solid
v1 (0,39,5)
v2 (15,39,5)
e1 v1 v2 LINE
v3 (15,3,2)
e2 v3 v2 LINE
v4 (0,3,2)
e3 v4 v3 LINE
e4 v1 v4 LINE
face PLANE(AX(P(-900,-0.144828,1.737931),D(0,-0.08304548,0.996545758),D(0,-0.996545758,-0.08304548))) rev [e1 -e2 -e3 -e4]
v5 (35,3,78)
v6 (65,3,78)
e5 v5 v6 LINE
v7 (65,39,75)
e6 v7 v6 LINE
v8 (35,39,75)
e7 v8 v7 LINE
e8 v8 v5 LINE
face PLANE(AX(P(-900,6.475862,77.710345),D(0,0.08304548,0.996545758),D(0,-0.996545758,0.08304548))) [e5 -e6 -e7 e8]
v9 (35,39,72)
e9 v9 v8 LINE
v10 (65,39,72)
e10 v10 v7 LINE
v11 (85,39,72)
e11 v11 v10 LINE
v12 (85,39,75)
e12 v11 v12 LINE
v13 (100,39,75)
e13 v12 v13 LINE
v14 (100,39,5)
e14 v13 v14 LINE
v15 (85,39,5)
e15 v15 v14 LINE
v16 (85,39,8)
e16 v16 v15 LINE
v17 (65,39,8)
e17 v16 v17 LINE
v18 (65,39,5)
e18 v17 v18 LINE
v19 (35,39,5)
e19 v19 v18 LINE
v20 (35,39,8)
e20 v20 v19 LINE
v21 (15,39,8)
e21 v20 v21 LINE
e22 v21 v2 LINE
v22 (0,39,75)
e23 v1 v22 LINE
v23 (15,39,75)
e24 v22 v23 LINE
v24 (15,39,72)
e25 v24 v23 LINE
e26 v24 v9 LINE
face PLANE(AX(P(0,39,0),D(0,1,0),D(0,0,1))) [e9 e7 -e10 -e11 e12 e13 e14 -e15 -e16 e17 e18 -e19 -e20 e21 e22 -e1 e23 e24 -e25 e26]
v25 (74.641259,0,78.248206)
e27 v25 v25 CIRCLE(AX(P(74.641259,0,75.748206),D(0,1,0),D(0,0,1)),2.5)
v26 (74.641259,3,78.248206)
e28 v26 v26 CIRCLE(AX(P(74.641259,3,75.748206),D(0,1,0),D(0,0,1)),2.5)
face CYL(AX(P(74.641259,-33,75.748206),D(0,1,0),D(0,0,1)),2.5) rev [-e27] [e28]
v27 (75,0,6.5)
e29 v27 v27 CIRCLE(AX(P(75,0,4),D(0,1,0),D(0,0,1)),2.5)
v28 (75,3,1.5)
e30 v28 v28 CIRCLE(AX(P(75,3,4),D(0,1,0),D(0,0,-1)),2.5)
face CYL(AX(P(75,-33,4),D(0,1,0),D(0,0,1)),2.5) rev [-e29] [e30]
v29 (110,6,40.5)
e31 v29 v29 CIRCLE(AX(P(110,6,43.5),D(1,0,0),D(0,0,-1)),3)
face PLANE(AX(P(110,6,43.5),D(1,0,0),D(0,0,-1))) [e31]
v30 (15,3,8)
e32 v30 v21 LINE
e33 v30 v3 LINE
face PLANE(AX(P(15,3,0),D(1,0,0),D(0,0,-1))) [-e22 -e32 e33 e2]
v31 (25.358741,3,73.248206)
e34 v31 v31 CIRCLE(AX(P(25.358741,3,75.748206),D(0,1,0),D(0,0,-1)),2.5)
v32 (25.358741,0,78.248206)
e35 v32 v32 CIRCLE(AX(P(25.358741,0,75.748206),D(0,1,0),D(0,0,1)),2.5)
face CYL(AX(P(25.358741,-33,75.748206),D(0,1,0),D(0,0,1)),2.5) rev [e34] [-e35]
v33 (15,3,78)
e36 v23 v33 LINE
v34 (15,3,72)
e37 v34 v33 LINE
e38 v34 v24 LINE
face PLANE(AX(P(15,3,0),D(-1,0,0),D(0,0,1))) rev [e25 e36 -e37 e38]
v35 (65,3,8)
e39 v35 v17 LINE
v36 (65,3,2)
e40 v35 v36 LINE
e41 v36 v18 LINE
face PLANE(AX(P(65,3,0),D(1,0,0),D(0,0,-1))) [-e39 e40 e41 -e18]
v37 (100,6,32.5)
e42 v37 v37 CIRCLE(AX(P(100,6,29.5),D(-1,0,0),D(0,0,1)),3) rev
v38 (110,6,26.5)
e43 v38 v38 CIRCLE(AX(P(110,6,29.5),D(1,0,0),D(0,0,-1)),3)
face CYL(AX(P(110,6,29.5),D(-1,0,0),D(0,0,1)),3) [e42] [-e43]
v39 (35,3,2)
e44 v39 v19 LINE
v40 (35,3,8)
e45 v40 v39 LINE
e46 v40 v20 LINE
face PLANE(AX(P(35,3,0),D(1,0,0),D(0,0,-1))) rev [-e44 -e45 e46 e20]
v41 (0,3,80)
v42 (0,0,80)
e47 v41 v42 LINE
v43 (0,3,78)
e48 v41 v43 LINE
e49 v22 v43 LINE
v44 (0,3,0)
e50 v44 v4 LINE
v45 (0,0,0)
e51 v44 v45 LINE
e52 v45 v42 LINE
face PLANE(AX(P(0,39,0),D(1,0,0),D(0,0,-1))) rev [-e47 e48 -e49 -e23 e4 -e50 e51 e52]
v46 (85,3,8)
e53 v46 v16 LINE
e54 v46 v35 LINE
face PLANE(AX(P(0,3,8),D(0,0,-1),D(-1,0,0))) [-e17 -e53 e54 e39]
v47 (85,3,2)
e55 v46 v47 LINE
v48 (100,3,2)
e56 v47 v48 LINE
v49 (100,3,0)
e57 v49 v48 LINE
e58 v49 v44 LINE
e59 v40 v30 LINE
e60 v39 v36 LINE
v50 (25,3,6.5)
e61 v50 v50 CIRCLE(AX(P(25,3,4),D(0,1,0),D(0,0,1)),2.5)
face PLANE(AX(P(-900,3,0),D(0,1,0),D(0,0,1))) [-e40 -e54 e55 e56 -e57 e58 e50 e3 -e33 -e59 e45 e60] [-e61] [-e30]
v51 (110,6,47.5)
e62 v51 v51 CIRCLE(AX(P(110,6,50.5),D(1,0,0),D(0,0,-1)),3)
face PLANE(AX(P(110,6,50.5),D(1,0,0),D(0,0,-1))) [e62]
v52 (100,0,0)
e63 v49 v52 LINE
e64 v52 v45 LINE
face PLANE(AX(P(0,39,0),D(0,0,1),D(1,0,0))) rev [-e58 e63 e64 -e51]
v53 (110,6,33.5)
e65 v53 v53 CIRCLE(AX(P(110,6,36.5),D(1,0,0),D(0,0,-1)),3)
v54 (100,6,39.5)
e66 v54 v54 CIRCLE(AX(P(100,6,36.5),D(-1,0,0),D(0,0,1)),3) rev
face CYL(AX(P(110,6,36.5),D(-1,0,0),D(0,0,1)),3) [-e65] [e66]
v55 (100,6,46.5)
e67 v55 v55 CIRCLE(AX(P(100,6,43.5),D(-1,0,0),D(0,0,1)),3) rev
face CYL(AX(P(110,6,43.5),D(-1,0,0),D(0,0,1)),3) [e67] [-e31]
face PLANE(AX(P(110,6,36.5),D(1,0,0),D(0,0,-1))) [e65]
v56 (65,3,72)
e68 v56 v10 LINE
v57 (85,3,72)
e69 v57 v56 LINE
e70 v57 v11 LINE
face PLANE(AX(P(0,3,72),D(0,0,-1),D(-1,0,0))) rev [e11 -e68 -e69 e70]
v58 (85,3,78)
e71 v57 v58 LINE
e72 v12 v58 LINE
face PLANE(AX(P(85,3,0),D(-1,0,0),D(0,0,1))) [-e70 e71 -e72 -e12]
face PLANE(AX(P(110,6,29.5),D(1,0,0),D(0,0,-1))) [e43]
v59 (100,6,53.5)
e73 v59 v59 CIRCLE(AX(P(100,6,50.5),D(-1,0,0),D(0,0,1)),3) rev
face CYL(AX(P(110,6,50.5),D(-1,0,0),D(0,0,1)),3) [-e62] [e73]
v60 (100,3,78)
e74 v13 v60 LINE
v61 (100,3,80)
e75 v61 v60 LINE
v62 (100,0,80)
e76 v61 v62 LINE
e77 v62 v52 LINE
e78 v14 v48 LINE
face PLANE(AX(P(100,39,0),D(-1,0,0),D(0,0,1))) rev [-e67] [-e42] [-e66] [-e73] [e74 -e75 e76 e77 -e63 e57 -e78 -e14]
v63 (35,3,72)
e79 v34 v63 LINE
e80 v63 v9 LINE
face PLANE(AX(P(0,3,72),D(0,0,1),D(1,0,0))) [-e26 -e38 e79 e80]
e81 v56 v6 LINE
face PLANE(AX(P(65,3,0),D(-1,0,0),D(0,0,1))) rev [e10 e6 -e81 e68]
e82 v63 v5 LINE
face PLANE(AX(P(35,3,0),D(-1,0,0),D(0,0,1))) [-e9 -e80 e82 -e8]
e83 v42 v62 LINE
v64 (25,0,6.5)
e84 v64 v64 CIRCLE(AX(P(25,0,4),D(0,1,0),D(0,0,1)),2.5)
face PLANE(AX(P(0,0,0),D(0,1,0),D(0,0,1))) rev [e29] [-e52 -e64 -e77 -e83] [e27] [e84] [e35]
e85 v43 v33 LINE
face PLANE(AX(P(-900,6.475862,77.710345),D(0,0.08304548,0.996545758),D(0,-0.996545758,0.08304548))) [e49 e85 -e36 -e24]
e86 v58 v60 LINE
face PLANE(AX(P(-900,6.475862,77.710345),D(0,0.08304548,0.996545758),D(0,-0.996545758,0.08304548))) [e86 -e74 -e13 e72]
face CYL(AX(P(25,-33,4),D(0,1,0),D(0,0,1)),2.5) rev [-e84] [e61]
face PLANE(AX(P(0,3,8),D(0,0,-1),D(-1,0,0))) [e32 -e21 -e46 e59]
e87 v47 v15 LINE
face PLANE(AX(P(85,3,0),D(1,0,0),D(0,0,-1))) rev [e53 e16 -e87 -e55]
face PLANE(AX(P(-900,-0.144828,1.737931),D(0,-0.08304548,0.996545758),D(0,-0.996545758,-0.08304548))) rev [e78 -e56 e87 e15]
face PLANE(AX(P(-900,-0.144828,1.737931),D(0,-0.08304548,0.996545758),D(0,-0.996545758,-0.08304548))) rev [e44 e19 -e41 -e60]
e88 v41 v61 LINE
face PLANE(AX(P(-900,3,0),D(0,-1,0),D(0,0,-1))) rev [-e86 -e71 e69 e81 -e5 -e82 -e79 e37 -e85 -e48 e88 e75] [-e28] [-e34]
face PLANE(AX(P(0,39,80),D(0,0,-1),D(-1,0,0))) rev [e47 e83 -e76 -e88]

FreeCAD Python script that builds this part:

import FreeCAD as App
import Part
import Sketcher
from FreeCAD import Vector

doc = App.newDocument("Part")
body = doc.addObject("PartDesign::Body", "Body")

# Sketch on XZ plane
sketch1 = body.newObject("Sketcher::SketchObject", "Sketch")
sketch1.AttachmentSupport = (doc.getObject("XZ_Plane"), [""])
sketch1.MapMode = "FlatFace"
sketch1.addGeometry(Part.LineSegment(Vector(0, 0, 0), Vector(0, 80, 0)), False)
sketch1.addGeometry(Part.LineSegment(Vector(0, 80, 0), Vector(100, 80, 0)), False)
sketch1.addGeometry(Part.LineSegment(Vector(100, 80, 0), Vector(100, 0, 0)), False)
sketch1.addGeometry(Part.LineSegment(Vector(100, 0, 0), Vector(0, 0, 0)), False)
sketch1.addConstraint(Sketcher.Constraint("Coincident", 0, 2, 1, 1))
sketch1.addConstraint(Sketcher.Constraint("Coincident", 1, 2, 2, 1))
sketch1.addConstraint(Sketcher.Constraint("Coincident", 2, 2, 3, 1))
sketch1.addConstraint(Sketcher.Constraint("Coincident", 3, 2, 0, 1))
sketch1.addConstraint(Sketcher.Constraint("Vertical", 0))
sketch1.addConstraint(Sketcher.Constraint("Horizontal", 1))
sketch1.addConstraint(Sketcher.Constraint("Vertical", 2))
sketch1.addConstraint(Sketcher.Constraint("Horizontal", 3))
sketch1.addConstraint(Sketcher.Constraint("Coincident", 3, 2, -1, 1))
sketch1.addConstraint(Sketcher.Constraint("DistanceX", 1, 1, 1, 2, 100.0))
sketch1.addConstraint(Sketcher.Constraint("DistanceY", 0, 1, 0, 2, 80.0))
pad1 = body.newObject("PartDesign::Pad", "Pad")
pad1.Profile = sketch1
pad1.Length = 39
pad1.Reversed = True

# Sketch on YZ plane
sketch2 = body.newObject("Sketcher::SketchObject", "Sketch001")
sketch2.AttachmentSupport = (doc.getObject("YZ_Plane"), [""])
sketch2.MapMode = "FlatFace"
sketch2.AttachmentOffset = App.Placement(Vector(0, 0, 100), App.Rotation())
sketch2.addGeometry(Part.Circle(Vector(6, 50.5, 0), Vector(0, 0, 1), 3), False)
sketch2.addGeometry(Part.Circle(Vector(6, 43.5, 0), Vector(0, 0, 1), 3), False)
sketch2.addGeometry(Part.Circle(Vector(6, 36.5, 0), Vector(0, 0, 1), 3), False)
sketch2.addGeometry(Part.Circle(Vector(6, 29.5, 0), Vector(0, 0, 1), 3), False)
sketch2.addConstraint(Sketcher.Constraint("Equal", 0, 1))
sketch2.addConstraint(Sketcher.Constraint("Equal", 1, 2))
sketch2.addConstraint(Sketcher.Constraint("Equal", 2, 3))
sketch2.addConstraint(Sketcher.Constraint("Vertical", 0, 3, 1, 3))
sketch2.addConstraint(Sketcher.Constraint("Vertical", 1, 3, 2, 3))
sketch2.addConstraint(Sketcher.Constraint("Vertical", 2, 3, 3, 3))
sketch2.addConstraint(Sketcher.Constraint("Diameter", 0, 6.0))
sketch2.addConstraint(Sketcher.Constraint("DistanceX", -1, 1, 0, 3, 6.0))
sketch2.addConstraint(Sketcher.Constraint("DistanceY", 1, 3, 0, 3, 7.0))
sketch2.addConstraint(Sketcher.Constraint("DistanceY", 2, 3, 1, 3, 7.0))
sketch2.addConstraint(Sketcher.Constraint("DistanceY", 3, 3, 2, 3, 7.0))
sketch2.addConstraint(Sketcher.Constraint("DistanceY", -1, 1, 0, 3, 50.5))
pad2 = body.newObject("PartDesign::Pad", "Pad001")
pad2.Profile = sketch2
pad2.Length = 10

# Sketch on YZ plane
sketch3 = body.newObject("Sketcher::SketchObject", "Sketch002")
sketch3.AttachmentSupport = (doc.getObject("YZ_Plane"), [""])
sketch3.MapMode = "FlatFace"
sketch3.AttachmentOffset = App.Placement(Vector(0, 0, 100), App.Rotation())
sketch3.addGeometry(Part.LineSegment(Vector(3, 78, 0), Vector(39, 75, 0)), False)
sketch3.addGeometry(Part.LineSegment(Vector(39, 75, 0), Vector(39, 80, 0)), False)
sketch3.addGeometry(Part.LineSegment(Vector(39, 80, 0), Vector(3, 80, 0)), False)
sketch3.addGeometry(Part.LineSegment(Vector(3, 80, 0), Vector(3, 78, 0)), False)
sketch3.addGeometry(Part.LineSegment(Vector(3, 0, 0), Vector(39, 0, 0)), False)
sketch3.addGeometry(Part.LineSegment(Vector(39, 0, 0), Vector(39, 5, 0)), False)
sketch3.addGeometry(Part.LineSegment(Vector(39, 5, 0), Vector(3, 2, 0)), False)
sketch3.addGeometry(Part.LineSegment(Vector(3, 2, 0), Vector(3, 0, 0)), False)
sketch3.addConstraint(Sketcher.Constraint("Coincident", 0, 2, 1, 1))
sketch3.addConstraint(Sketcher.Constraint("Coincident", 1, 2, 2, 1))
sketch3.addConstraint(Sketcher.Constraint("Coincident", 2, 2, 3, 1))
sketch3.addConstraint(Sketcher.Constraint("Coincident", 3, 2, 0, 1))
sketch3.addConstraint(Sketcher.Constraint("Coincident", 4, 2, 5, 1))
sketch3.addConstraint(Sketcher.Constraint("Coincident", 5, 2, 6, 1))
sketch3.addConstraint(Sketcher.Constraint("Coincident", 6, 2, 7, 1))
sketch3.addConstraint(Sketcher.Constraint("Coincident", 7, 2, 4, 1))
sketch3.addConstraint(Sketcher.Constraint("Vertical", 1))
sketch3.addConstraint(Sketcher.Constraint("Horizontal", 2))
sketch3.addConstraint(Sketcher.Constraint("Vertical", 3))
sketch3.addConstraint(Sketcher.Constraint("Horizontal", 4))
sketch3.addConstraint(Sketcher.Constraint("Vertical", 5))
sketch3.addConstraint(Sketcher.Constraint("Vertical", 7))
sketch3.addConstraint(Sketcher.Constraint("PointOnObject", 4, 2, -1))
sketch3.addConstraint(Sketcher.Constraint("Vertical", 1, 2, 4, 2))
sketch3.addConstraint(Sketcher.Constraint("Vertical", 3, 2, 6, 2))
sketch3.addConstraint(Sketcher.Constraint("Equal", 1, 5))
sketch3.addConstraint(Sketcher.Constraint("Equal", 3, 7))
sketch3.addConstraint(Sketcher.Constraint("DistanceX", 2, 2, 2, 1, 36.0))
sketch3.addConstraint(Sketcher.Constraint("DistanceY", 1, 1, 1, 2, 5.0))
sketch3.addConstraint(Sketcher.Constraint("DistanceY", 3, 2, 3, 1, 2.0))
sketch3.addConstraint(Sketcher.Constraint("DistanceX", -1, 1, 0, 2, 39.0))
sketch3.addConstraint(Sketcher.Constraint("DistanceY", -1, 1, 0, 2, 75.0))
pocket1 = body.newObject("PartDesign::Pocket", "Pocket")
pocket1.Profile = sketch3
pocket1.Length = 1000

# Sketch on XZ plane
sketch4 = body.newObject("Sketcher::SketchObject", "Sketch003")
sketch4.AttachmentSupport = (doc.getObject("XZ_Plane"), [""])
sketch4.MapMode = "FlatFace"
sketch4.AttachmentOffset = App.Placement(Vector(0, 0, -39), App.Rotation())
sketch4.addGeometry(Part.LineSegment(Vector(15, -1, 0), Vector(15, 8, 0)), False)
sketch4.addGeometry(Part.LineSegment(Vector(15, 8, 0), Vector(35, 8, 0)), False)
sketch4.addGeometry(Part.LineSegment(Vector(35, 8, 0), Vector(35, -1, 0)), False)
sketch4.addGeometry(Part.LineSegment(Vector(35, -1, 0), Vector(15, -1, 0)), False)
sketch4.addGeometry(Part.LineSegment(Vector(65, -4, 0), Vector(65, 8, 0)), False)
sketch4.addGeometry(Part.LineSegment(Vector(65, 8, 0), Vector(85, 8, 0)), False)
sketch4.addGeometry(Part.LineSegment(Vector(85, 8, 0), Vector(85, -4, 0)), False)
sketch4.addGeometry(Part.LineSegment(Vector(85, -4, 0), Vector(65, -4, 0)), False)
sketch4.addGeometry(Part.LineSegment(Vector(65, 86, 0), Vector(85, 86, 0)), False)
sketch4.addGeometry(Part.LineSegment(Vector(85, 86, 0), Vector(85, 72, 0)), False)
sketch4.addGeometry(Part.LineSegment(Vector(85, 72, 0), Vector(65, 72, 0)), False)
sketch4.addGeometry(Part.LineSegment(Vector(65, 72, 0), Vector(65, 86, 0)), False)
sketch4.addGeometry(Part.LineSegment(Vector(15, 84, 0), Vector(35, 84, 0)), False)
sketch4.addGeometry(Part.LineSegment(Vector(35, 84, 0), Vector(35, 72, 0)), False)
sketch4.addGeometry(Part.LineSegment(Vector(35, 72, 0), Vector(15, 72, 0)), False)
sketch4.addGeometry(Part.LineSegment(Vector(15, 72, 0), Vector(15, 84, 0)), False)
sketch4.addConstraint(Sketcher.Constraint("Coincident", 0, 2, 1, 1))
sketch4.addConstraint(Sketcher.Constraint("Coincident", 1, 2, 2, 1))
sketch4.addConstraint(Sketcher.Constraint("Coincident", 2, 2, 3, 1))
sketch4.addConstraint(Sketcher.Constraint("Coincident", 3, 2, 0, 1))
sketch4.addConstraint(Sketcher.Constraint("Coincident", 4, 2, 5, 1))
sketch4.addConstraint(Sketcher.Constraint("Coincident", 5, 2, 6, 1))
sketch4.addConstraint(Sketcher.Constraint("Coincident", 6, 2, 7, 1))
sketch4.addConstraint(Sketcher.Constraint("Coincident", 7, 2, 4, 1))
sketch4.addConstraint(Sketcher.Constraint("Coincident", 8, 2, 9, 1))
sketch4.addConstraint(Sketcher.Constraint("Coincident", 9, 2, 10, 1))
sketch4.addConstraint(Sketcher.Constraint("Coincident", 10, 2, 11, 1))
sketch4.addConstraint(Sketcher.Constraint("Coincident", 11, 2, 8, 1))
sketch4.addConstraint(Sketcher.Constraint("Coincident", 12, 2, 13, 1))
sketch4.addConstraint(Sketcher.Constraint("Coincident", 13, 2, 14, 1))
sketch4.addConstraint(Sketcher.Constraint("Coincident", 14, 2, 15, 1))
sketch4.addConstraint(Sketcher.Constraint("Coincident", 15, 2, 12, 1))
sketch4.addConstraint(Sketcher.Constraint("Vertical", 0))
sketch4.addConstraint(Sketcher.Constraint("Horizontal", 1))
sketch4.addConstraint(Sketcher.Constraint("Vertical", 2))
sketch4.addConstraint(Sketcher.Constraint("Horizontal", 3))
sketch4.addConstraint(Sketcher.Constraint("Vertical", 4))
sketch4.addConstraint(Sketcher.Constraint("Horizontal", 5))
sketch4.addConstraint(Sketcher.Constraint("Vertical", 6))
sketch4.addConstraint(Sketcher.Constraint("Horizontal", 7))
sketch4.addConstraint(Sketcher.Constraint("Horizontal", 8))
sketch4.addConstraint(Sketcher.Constraint("Vertical", 9))
sketch4.addConstraint(Sketcher.Constraint("Horizontal", 10))
sketch4.addConstraint(Sketcher.Constraint("Vertical", 11))
sketch4.addConstraint(Sketcher.Constraint("Horizontal", 12))
sketch4.addConstraint(Sketcher.Constraint("Vertical", 13))
sketch4.addConstraint(Sketcher.Constraint("Horizontal", 14))
sketch4.addConstraint(Sketcher.Constraint("Vertical", 15))
sketch4.addConstraint(Sketcher.Constraint("Horizontal", 1, 2, 4, 2))
sketch4.addConstraint(Sketcher.Constraint("Horizontal", 10, 2, 13, 2))
sketch4.addConstraint(Sketcher.Constraint("Vertical", 6, 2, 8, 2))
sketch4.addConstraint(Sketcher.Constraint("Vertical", 7, 2, 10, 2))
sketch4.addConstraint(Sketcher.Constraint("Vertical", 2, 2, 12, 2))
sketch4.addConstraint(Sketcher.Constraint("Vertical", 3, 2, 14, 2))
sketch4.addConstraint(Sketcher.Constraint("Equal", 3, 5))
sketch4.addConstraint(Sketcher.Constraint("DistanceX", 1, 1, 1, 2, 20.0))
sketch4.addConstraint(Sketcher.Constraint("DistanceX", -1, 1, 0, 2, 15.0))
sketch4.addConstraint(Sketcher.Constraint("DistanceY", -1, 1, 0, 2, 8.0))
sketch4.addConstraint(Sketcher.Constraint("DistanceX", -1, 1, 4, 2, 65.0))
sketch4.addConstraint(Sketcher.Constraint("DistanceY", -1, 1, 9, 2, 72.0))
sketch4.addConstraint(Sketcher.Constraint("DistanceY", 0, 1, 0, 2, 9.479519))
sketch4.addConstraint(Sketcher.Constraint("DistanceY", 13, 2, 13, 1, 11.80104))
sketch4.addConstraint(Sketcher.Constraint("DistanceY", 4, 1, 4, 2, 11.519653))
sketch4.addConstraint(Sketcher.Constraint("DistanceY", 9, 2, 9, 1, 14.102207))
pocket2 = body.newObject("PartDesign::Pocket", "Pocket001")
pocket2.Profile = sketch4
pocket2.Length = 36
pocket2.Reversed = True

# Sketch on XZ plane
sketch5 = body.newObject("Sketcher::SketchObject", "Sketch004")
sketch5.AttachmentSupport = (doc.getObject("XZ_Plane"), [""])
sketch5.MapMode = "FlatFace"
sketch5.AttachmentOffset = App.Placement(Vector(0, 0, -3), App.Rotation())
sketch5.addGeometry(Part.Circle(Vector(25, 4, 0), Vector(0, 0, 1), 2.5), False)
sketch5.addGeometry(Part.Circle(Vector(25.4, 75.7, 0), Vector(0, 0, 1), 2.5), False)
sketch5.addGeometry(Part.Circle(Vector(75, 4, 0), Vector(0, 0, 1), 2.5), False)
sketch5.addGeometry(Part.Circle(Vector(74.6, 75.7, 0), Vector(0, 0, 1), 2.5), False)
sketch5.addConstraint(Sketcher.Constraint("Equal", 0, 1))
sketch5.addConstraint(Sketcher.Constraint("Equal", 1, 2))
sketch5.addConstraint(Sketcher.Constraint("Equal", 2, 3))
sketch5.addConstraint(Sketcher.Constraint("Horizontal", 0, 3, 2, 3))
sketch5.addConstraint(Sketcher.Constraint("Horizontal", 1, 3, 3, 3))
sketch5.addConstraint(Sketcher.Constraint("Diameter", 0, 5.0))
sketch5.addConstraint(Sketcher.Constraint("DistanceX", -1, 1, 0, 3, 25.0))
sketch5.addConstraint(Sketcher.Constraint("DistanceY", -1, 1, 0, 3, 4.0))
sketch5.addConstraint(Sketcher.Constraint("DistanceX", -1, 1, 2, 3, 75.0))
sketch5.addConstraint(Sketcher.Constraint("DistanceX", -1, 1, 1, 3, 25.358741))
sketch5.addConstraint(Sketcher.Constraint("DistanceX", -1, 1, 3, 3, 74.641259))
sketch5.addConstraint(Sketcher.Constraint("DistanceY", -1, 1, 1, 3, 75.748206))
pocket3 = body.newObject("PartDesign::Pocket", "Pocket002")
pocket3.Profile = sketch5
pocket3.Length = 36
pocket3.Reversed = True

doc.recompute()
